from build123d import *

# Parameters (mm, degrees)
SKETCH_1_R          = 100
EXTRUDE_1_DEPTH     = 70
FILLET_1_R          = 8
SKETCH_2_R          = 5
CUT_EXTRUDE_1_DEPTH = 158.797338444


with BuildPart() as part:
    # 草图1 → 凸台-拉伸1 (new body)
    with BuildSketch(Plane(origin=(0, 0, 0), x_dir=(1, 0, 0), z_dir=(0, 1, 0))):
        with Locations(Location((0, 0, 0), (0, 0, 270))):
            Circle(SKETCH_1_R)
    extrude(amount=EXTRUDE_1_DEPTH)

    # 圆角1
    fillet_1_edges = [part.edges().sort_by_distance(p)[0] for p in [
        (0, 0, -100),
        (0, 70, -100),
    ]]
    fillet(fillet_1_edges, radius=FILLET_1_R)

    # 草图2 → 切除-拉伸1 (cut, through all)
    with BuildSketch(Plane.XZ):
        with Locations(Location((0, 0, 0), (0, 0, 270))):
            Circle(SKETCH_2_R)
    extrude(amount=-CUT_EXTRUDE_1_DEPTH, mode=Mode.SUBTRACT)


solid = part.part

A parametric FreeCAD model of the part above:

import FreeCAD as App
import Part
import Sketcher


def edges_at(feature, points):
    """Names of the edges that pass closest to the given points."""
    edges = feature.Shape.Edges
    near = lambda p: min(range(len(edges)), key=lambda i: edges[i].distToShape(Part.Vertex(*p))[0])
    return sorted({f"Edge{near(p) + 1}" for p in points})

doc = App.newDocument("Part")
body = doc.addObject("PartDesign::Body", "Body")

# Sketch on XZ plane
sketch1 = body.newObject("Sketcher::SketchObject", "Sketch")
sketch1.AttachmentSupport = (doc.getObject("XZ_Plane"), [""])
sketch1.MapMode = "FlatFace"
sketch1.addGeometry(Part.Circle(App.Vector(0, 0, 0), App.Vector(0, 0, 1), 100), False)
sketch1.addConstraint([
    Sketcher.Constraint("Coincident", 0, 3, -1, 1),
    Sketcher.Constraint("Diameter", 0, 200.0),
])
pad1 = body.newObject("PartDesign::Pad", "Pad")
pad1.Profile = sketch1
pad1.Length = 70
pad1.Reversed = True
doc.recompute()

fillet = body.newObject("PartDesign::Fillet", "Fillet")
fillet.Base = (pad1, edges_at(pad1, [(0, 0, -100), (0, 70, -100)]))
fillet.Radius = 8

# Sketch on XZ plane
sketch2 = body.newObject("Sketcher::SketchObject", "Sketch001")
sketch2.AttachmentSupport = (doc.getObject("XZ_Plane"), [""])
sketch2.MapMode = "FlatFace"
sketch2.addGeometry(Part.Circle(App.Vector(0, 0, 0), App.Vector(0, 0, 1), 5), False)
sketch2.addConstraint([
    Sketcher.Constraint("Coincident", 0, 3, -1, 1),
    Sketcher.Constraint("Diameter", 0, 10.0),
])
pocket1 = body.newObject("PartDesign::Pocket", "Pocket")
pocket1.Profile = sketch2
pocket1.Type = "ThroughAll"

doc.recompute()
